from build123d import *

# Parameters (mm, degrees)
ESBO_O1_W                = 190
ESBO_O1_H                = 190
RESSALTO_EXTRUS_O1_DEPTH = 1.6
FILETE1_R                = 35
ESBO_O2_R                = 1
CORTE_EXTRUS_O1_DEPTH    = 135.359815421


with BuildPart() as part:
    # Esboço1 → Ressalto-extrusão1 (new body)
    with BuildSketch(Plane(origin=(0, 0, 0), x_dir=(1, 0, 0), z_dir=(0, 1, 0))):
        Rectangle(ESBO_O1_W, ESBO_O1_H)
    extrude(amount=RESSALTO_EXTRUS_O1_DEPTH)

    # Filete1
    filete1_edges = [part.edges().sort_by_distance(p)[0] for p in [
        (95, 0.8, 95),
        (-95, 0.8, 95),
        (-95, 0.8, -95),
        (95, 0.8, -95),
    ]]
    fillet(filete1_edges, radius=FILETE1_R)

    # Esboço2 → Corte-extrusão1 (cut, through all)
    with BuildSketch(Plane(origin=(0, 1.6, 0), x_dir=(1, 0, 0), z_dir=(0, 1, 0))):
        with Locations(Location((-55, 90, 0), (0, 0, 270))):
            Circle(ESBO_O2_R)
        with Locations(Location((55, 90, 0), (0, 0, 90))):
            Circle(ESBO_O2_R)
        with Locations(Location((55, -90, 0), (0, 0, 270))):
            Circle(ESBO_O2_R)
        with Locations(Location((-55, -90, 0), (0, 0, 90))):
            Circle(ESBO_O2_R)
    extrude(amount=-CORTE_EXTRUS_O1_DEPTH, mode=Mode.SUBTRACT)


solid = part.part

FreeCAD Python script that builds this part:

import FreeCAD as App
import Part
import Sketcher


def edges_at(feature, points):
    """Names of the edges that pass closest to the given points."""
    edges = feature.Shape.Edges
    near = lambda p: min(range(len(edges)), key=lambda i: edges[i].distToShape(Part.Vertex(*p))[0])
    return sorted({f"Edge{near(p) + 1}" for p in points})

doc = App.newDocument("Part")
params = doc.addObject("Spreadsheet::Sheet", "Params")
for row, (alias, value) in enumerate([
    ("sketch1_width", "190 mm"),
    ("pad1_length", "1.6 mm"),
    ("fillet_radius", "35 mm"),
    ("sketch2_diameter", "2 mm"),
], start=1):
    params.set(f"A{row}", alias)
    params.set(f"B{row}", "=" + value)
    params.setAlias(f"B{row}", alias)

body = doc.addObject("PartDesign::Body", "Body")

# Sketch on XZ plane
sketch1 = body.newObject("Sketcher::SketchObject", "Sketch")
sketch1.AttachmentSupport = (doc.getObject("XZ_Plane"), [""])
sketch1.MapMode = "FlatFace"
sketch1.addGeometry([
    Part.LineSegment(App.Vector(-95, -95, 0), App.Vector(-95, 95, 0)),
    Part.LineSegment(App.Vector(-95, 95, 0), App.Vector(95, 95, 0)),
    Part.LineSegment(App.Vector(95, 95, 0), App.Vector(95, -95, 0)),
    Part.LineSegment(App.Vector(95, -95, 0), App.Vector(-95, -95, 0)),
], False)
sketch1.addConstraint([
    Sketcher.Constraint("Coincident", 0, 2, 1, 1),
    Sketcher.Constraint("Coincident", 1, 2, 2, 1),
    Sketcher.Constraint("Coincident", 2, 2, 3, 1),
    Sketcher.Constraint("Coincident", 3, 2, 0, 1),
    Sketcher.Constraint("Vertical", 0),
    Sketcher.Constraint("Horizontal", 1),
    Sketcher.Constraint("Vertical", 2),
    Sketcher.Constraint("Horizontal", 3),
    Sketcher.Constraint("Symmetric", 0, 2, 2, 2, -1, 1),
    Sketcher.Constraint("Equal", 3, 0),
    Sketcher.Constraint("DistanceX", 1, 1, 1, 2, 190.0),
])
sketch1.setExpression("Constraints[10]", "Params.sketch1_width")
pad1 = body.newObject("PartDesign::Pad", "Pad")
pad1.Profile = sketch1
pad1.setExpression("Length", "Params.pad1_length")
pad1.Reversed = True
doc.recompute()

fillet = body.newObject("PartDesign::Fillet", "Fillet")
fillet.Base = (pad1, edges_at(pad1, [
    (95, 0.8, 95),
    (-95, 0.8, 95),
    (-95, 0.8, -95),
    (95, 0.8, -95),
]))
fillet.setExpression("Radius", "Params.fillet_radius")

# Sketch on XZ plane
sketch2 = body.newObject("Sketcher::SketchObject", "Sketch001")
sketch2.AttachmentSupport = (doc.getObject("XZ_Plane"), [""])
sketch2.MapMode = "FlatFace"
sketch2.AttachmentOffset = App.Placement(App.Vector(0, 0, -1.6), App.Rotation())
sketch2.addGeometry([
    Part.Circle(App.Vector(-55, -90, 0), App.Vector(0, 0, 1), 1),
    Part.Circle(App.Vector(55, -90, 0), App.Vector(0, 0, 1), 1),
    Part.Circle(App.Vector(55, 90, 0), App.Vector(0, 0, 1), 1),
    Part.Circle(App.Vector(-55, 90, 0), App.Vector(0, 0, 1), 1),
], False)
sketch2.addConstraint([
    Sketcher.Constraint("Equal", 0, 1),
    Sketcher.Constraint("Equal", 1, 2),
    Sketcher.Constraint("Equal", 2, 3),
    Sketcher.Constraint("Symmetric", 0, 3, 2, 3, -1, 1),
    Sketcher.Constraint("Symmetric", 1, 3, 3, 3, -1, 1),
    Sketcher.Constraint("Symmetric", 0, 3, 1, 3, -2),
    Sketcher.Constraint("Diameter", 0, 2.0),
    Sketcher.Constraint("DistanceX", 0, 3, -1, 1, 55.0),
    Sketcher.Constraint("DistanceY", 0, 3, -1, 1, 90.0),
])
sketch2.setExpression("Constraints[6]", "Params.sketch2_diameter")
pocket1 = body.newObject("PartDesign::Pocket", "Pocket")
pocket1.Profile = sketch2
pocket1.Type = "ThroughAll"
pocket1.Reversed = True

doc.recompute()
